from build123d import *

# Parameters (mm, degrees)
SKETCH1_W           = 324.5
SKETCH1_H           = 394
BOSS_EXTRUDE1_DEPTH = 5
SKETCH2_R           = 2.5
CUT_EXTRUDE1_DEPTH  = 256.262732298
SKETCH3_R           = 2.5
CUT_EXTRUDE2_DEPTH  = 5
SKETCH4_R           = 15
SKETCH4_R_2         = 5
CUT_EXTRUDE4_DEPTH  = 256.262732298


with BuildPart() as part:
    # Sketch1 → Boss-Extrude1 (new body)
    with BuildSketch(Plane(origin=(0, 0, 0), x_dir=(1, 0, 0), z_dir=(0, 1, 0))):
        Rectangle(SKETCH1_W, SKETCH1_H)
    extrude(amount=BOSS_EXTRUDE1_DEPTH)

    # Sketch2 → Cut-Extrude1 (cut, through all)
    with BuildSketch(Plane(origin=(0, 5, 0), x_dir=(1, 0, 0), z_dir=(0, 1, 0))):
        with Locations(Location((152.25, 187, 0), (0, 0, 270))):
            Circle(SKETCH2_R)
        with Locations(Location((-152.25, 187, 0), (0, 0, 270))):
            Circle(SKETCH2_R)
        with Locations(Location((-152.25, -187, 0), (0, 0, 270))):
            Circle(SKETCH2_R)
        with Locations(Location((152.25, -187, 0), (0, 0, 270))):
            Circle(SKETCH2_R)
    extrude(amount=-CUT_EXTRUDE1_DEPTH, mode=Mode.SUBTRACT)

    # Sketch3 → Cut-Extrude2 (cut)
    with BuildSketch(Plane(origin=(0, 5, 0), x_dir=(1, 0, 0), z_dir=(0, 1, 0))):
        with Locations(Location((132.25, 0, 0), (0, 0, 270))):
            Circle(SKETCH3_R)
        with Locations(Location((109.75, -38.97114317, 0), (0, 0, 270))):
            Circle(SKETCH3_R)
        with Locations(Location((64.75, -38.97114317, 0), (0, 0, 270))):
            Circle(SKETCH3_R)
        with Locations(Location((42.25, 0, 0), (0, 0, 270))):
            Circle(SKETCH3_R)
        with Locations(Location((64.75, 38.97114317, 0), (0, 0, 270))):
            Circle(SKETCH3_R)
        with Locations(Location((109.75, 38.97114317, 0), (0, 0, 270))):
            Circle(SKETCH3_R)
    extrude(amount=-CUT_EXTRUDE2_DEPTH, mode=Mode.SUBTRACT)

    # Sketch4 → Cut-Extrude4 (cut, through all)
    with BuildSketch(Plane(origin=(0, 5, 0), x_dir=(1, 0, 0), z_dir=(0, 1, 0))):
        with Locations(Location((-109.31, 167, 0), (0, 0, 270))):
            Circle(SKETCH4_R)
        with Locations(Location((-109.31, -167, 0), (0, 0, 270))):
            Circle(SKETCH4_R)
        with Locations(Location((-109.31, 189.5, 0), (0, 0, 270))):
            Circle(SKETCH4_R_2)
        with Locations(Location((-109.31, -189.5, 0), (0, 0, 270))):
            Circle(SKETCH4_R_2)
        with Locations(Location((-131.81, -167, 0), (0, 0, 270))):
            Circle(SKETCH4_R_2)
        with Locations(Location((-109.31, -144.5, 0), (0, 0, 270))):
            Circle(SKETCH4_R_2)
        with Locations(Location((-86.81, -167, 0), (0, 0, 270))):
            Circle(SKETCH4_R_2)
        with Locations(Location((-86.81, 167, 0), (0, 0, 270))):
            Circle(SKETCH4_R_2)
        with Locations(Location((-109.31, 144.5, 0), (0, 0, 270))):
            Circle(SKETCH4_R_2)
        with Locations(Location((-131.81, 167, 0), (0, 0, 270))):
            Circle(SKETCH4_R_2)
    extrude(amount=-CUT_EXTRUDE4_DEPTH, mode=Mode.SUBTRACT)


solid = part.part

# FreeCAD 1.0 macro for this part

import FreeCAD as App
import Part
import Sketcher

V = App.Vector
Q = App.Units.Quantity

doc = App.newDocument("Part")
body = doc.addObject("PartDesign::Body", "Body")

sketch1 = body.newObject("Sketcher::SketchObject", "Sketch")
sketch1.AttachmentSupport = (doc.getObject("XZ_Plane"), [""])
sketch1.MapMode = "FlatFace"
sketch1.addGeometry(Part.LineSegment(V(-162.25, -197, 0), V(-162.25, 197, 0)), False)
sketch1.addGeometry(Part.LineSegment(V(-162.25, 197, 0), V(162.25, 197, 0)), False)
sketch1.addGeometry(Part.LineSegment(V(162.25, 197, 0), V(162.25, -197, 0)), False)
sketch1.addGeometry(Part.LineSegment(V(162.25, -197, 0), V(-162.25, -197, 0)), False)
sketch1.addConstraint(Sketcher.Constraint("Coincident", 0, 2, 1, 1))
sketch1.addConstraint(Sketcher.Constraint("Coincident", 1, 2, 2, 1))
sketch1.addConstraint(Sketcher.Constraint("Coincident", 2, 2, 3, 1))
sketch1.addConstraint(Sketcher.Constraint("Coincident", 3, 2, 0, 1))
sketch1.addConstraint(Sketcher.Constraint("Vertical", 0))
sketch1.addConstraint(Sketcher.Constraint("Horizontal", 1))
sketch1.addConstraint(Sketcher.Constraint("Vertical", 2))
sketch1.addConstraint(Sketcher.Constraint("Horizontal", 3))
sketch1.addConstraint(Sketcher.Constraint("Symmetric", 0, 2, 2, 2, -1, 1))
sketch1.addConstraint(Sketcher.Constraint("DistanceY", 0, 1, 0, 2, Q("394 mm")))
sketch1.addConstraint(Sketcher.Constraint("DistanceX", 1, 1, 1, 2, Q("324.5 mm")))
pad1 = body.newObject("PartDesign::Pad", "Pad")
pad1.Profile = sketch1
pad1.Length = 5
pad1.Reversed = True

sketch2 = body.newObject("Sketcher::SketchObject", "Sketch001")
sketch2.AttachmentSupport = (doc.getObject("XZ_Plane"), [""])
sketch2.MapMode = "FlatFace"
sketch2.AttachmentOffset = App.Placement(V(0, 0, -5), App.Rotation())
sketch2.addGeometry(Part.Circle(V(152.25, -187, 0), V(0, 0, 1), 2.5), False)
sketch2.addGeometry(Part.Circle(V(-152.25, -187, 0), V(0, 0, 1), 2.5), False)
sketch2.addGeometry(Part.Circle(V(-152.25, 187, 0), V(0, 0, 1), 2.5), False)
sketch2.addGeometry(Part.Circle(V(152.25, 187, 0), V(0, 0, 1), 2.5), False)
sketch2.addConstraint(Sketcher.Constraint("Equal", 0, 1))
sketch2.addConstraint(Sketcher.Constraint("Equal", 1, 2))
sketch2.addConstraint(Sketcher.Constraint("Equal", 2, 3))
sketch2.addConstraint(Sketcher.Constraint("Symmetric", 0, 3, 2, 3, -1, 1))
sketch2.addConstraint(Sketcher.Constraint("Symmetric", 1, 3, 3, 3, -1, 1))
sketch2.addConstraint(Sketcher.Constraint("Symmetric", 0, 3, 1, 3, -2))
sketch2.addConstraint(Sketcher.Constraint("Diameter", 0, Q("5 mm")))
sketch2.addConstraint(Sketcher.Constraint("DistanceY", 0, 3, -1, 1, Q("187 mm")))
sketch2.addConstraint(Sketcher.Constraint("DistanceX", 1, 3, 0, 3, Q("304.5 mm")))
pocket1 = body.newObject("PartDesign::Pocket", "Pocket")
pocket1.Profile = sketch2
pocket1.Type = "ThroughAll"
pocket1.Reversed = True

sketch3 = body.newObject("Sketcher::SketchObject", "Sketch002")
sketch3.AttachmentSupport = (doc.getObject("XZ_Plane"), [""])
sketch3.MapMode = "FlatFace"
sketch3.AttachmentOffset = App.Placement(V(0, 0, -5), App.Rotation())
sketch3.addGeometry(Part.Circle(V(132.25, 0, 0), V(0, 0, 1), 2.5), False)
sketch3.addGeometry(Part.Circle(V(109.75, 38.971143, 0), V(0, 0, 1), 2.5), False)
sketch3.addGeometry(Part.Circle(V(64.75, 38.971143, 0), V(0, 0, 1), 2.5), False)
sketch3.addGeometry(Part.Circle(V(42.25, 0, 0), V(0, 0, 1), 2.5), False)
sketch3.addGeometry(Part.Circle(V(64.75, -38.971143, 0), V(0, 0, 1), 2.5), False)
sketch3.addGeometry(Part.Circle(V(109.75, -38.971143, 0), V(0, 0, 1), 2.5), False)
sketch3.addConstraint(Sketcher.Constraint("Equal", 0, 1))
sketch3.addConstraint(Sketcher.Constraint("Equal", 1, 2))
sketch3.addConstraint(Sketcher.Constraint("Equal", 2, 3))
sketch3.addConstraint(Sketcher.Constraint("Equal", 3, 4))
sketch3.addConstraint(Sketcher.Constraint("Equal", 4, 5))
sketch3.addConstraint(Sketcher.Constraint("Symmetric", 2, 3, 4, 3, -1))
sketch3.addConstraint(Sketcher.Constraint("Symmetric", 1, 3, 5, 3, -1))
sketch3.addConstraint(Sketcher.Constraint("PointOnObject", 0, 3, -1))
sketch3.addConstraint(Sketcher.Constraint("PointOnObject", 3, 3, -1))
sketch3.addConstraint(Sketcher.Constraint("Horizontal", 1, 3, 2, 3))
sketch3.addConstraint(Sketcher.Constraint("Diameter", 0, Q("5 mm")))
sketch3.addConstraint(Sketcher.Constraint("DistanceX", 2, 3, 1, 3, Q("45 mm")))
sketch3.addConstraint(Sketcher.Constraint("DistanceX", 3, 3, 0, 3, Q("90 mm")))
sketch3.addConstraint(Sketcher.Constraint("DistanceX", 1, 3, 0, 3, Q("22.5 mm")))
sketch3.addConstraint(Sketcher.Constraint("DistanceX", -1, 1, 0, 3, Q("132.25 mm")))
sketch3.addConstraint(Sketcher.Constraint("DistanceY", -1, 1, 1, 3, Q("38.971143 mm")))
pocket2 = body.newObject("PartDesign::Pocket", "Pocket001")
pocket2.Profile = sketch3
pocket2.Length = 5
pocket2.Reversed = True

sketch4 = body.newObject("Sketcher::SketchObject", "Sketch003")
sketch4.AttachmentSupport = (doc.getObject("XZ_Plane"), [""])
sketch4.MapMode = "FlatFace"
sketch4.AttachmentOffset = App.Placement(V(0, 0, -5), App.Rotation())
sketch4.addGeometry(Part.Circle(V(-109.31, -167, 0), V(0, 0, 1), 15), False)
sketch4.addGeometry(Part.Circle(V(-109.31, 167, 0), V(0, 0, 1), 15), False)
sketch4.addGeometry(Part.Circle(V(-109.31, -189.5, 0), V(0, 0, 1), 5), False)
sketch4.addGeometry(Part.Circle(V(-109.31, 189.5, 0), V(0, 0, 1), 5), False)
sketch4.addGeometry(Part.Circle(V(-131.81, 167, 0), V(0, 0, 1), 5), False)
sketch4.addGeometry(Part.Circle(V(-109.31, 144.5, 0), V(0, 0, 1), 5), False)
sketch4.addGeometry(Part.Circle(V(-86.81, 167, 0), V(0, 0, 1), 5), False)
sketch4.addGeometry(Part.Circle(V(-86.81, -167, 0), V(0, 0, 1), 5), False)
sketch4.addGeometry(Part.Circle(V(-109.31, -144.5, 0), V(0, 0, 1), 5), False)
sketch4.addGeometry(Part.Circle(V(-131.81, -167, 0), V(0, 0, 1), 5), False)
sketch4.addConstraint(Sketcher.Constraint("Equal", 0, 1))
sketch4.addConstraint(Sketcher.Constraint("Equal", 2, 3))
sketch4.addConstraint(Sketcher.Constraint("Equal", 3, 4))
sketch4.addConstraint(Sketcher.Constraint("Equal", 4, 5))
sketch4.addConstraint(Sketcher.Constraint("Equal", 5, 6))
sketch4.addConstraint(Sketcher.Constraint("Equal", 6, 7))
sketch4.addConstraint(Sketcher.Constraint("Equal", 7, 8))
sketch4.addConstraint(Sketcher.Constraint("Equal", 8, 9))
sketch4.addConstraint(Sketcher.Constraint("Symmetric", 0, 3, 1, 3, -1))
sketch4.addConstraint(Sketcher.Constraint("Symmetric", 2, 3, 3, 3, -1))
sketch4.addConstraint(Sketcher.Constraint("Symmetric", 6, 3, 7, 3, -1))
sketch4.addConstraint(Sketcher.Constraint("Symmetric", 5, 3, 8, 3, -1))
sketch4.addConstraint(Sketcher.Constraint("Symmetric", 4, 3, 9, 3, -1))
sketch4.addConstraint(Sketcher.Constraint("Horizontal", 1, 3, 4, 3))
sketch4.addConstraint(Sketcher.Constraint("Horizontal", 4, 3, 6, 3))
sketch4.addConstraint(Sketcher.Constraint("Vertical", 1, 3, 2, 3))
sketch4.addConstraint(Sketcher.Constraint("Vertical", 3, 3, 5, 3))
sketch4.addConstraint(Sketcher.Constraint("Diameter", 0, Q("30 mm")))
sketch4.addConstraint(Sketcher.Constraint("Diameter", 2, Q("10 mm")))
sketch4.addConstraint(Sketcher.Constraint("DistanceY", 0, 3, -1, 1, Q("167 mm")))
sketch4.addConstraint(Sketcher.Constraint("DistanceY", 2, 3, 3, 3, Q("379 mm")))
sketch4.addConstraint(Sketcher.Constraint("DistanceY", 5, 3, 3, 3, Q("45 mm")))
sketch4.addConstraint(Sketcher.Constraint("DistanceX", 4, 3, 6, 3, Q("45 mm")))
sketch4.addConstraint(Sketcher.Constraint("DistanceX", 4, 3, 1, 3, Q("22.5 mm")))
sketch4.addConstraint(Sketcher.Constraint("DistanceX", 0, 3, -1, 1, Q("109.31 mm")))
pocket3 = body.newObject("PartDesign::Pocket", "Pocket002")
pocket3.Profile = sketch4
pocket3.Type = "ThroughAll"
pocket3.Reversed = True

doc.recompute()
